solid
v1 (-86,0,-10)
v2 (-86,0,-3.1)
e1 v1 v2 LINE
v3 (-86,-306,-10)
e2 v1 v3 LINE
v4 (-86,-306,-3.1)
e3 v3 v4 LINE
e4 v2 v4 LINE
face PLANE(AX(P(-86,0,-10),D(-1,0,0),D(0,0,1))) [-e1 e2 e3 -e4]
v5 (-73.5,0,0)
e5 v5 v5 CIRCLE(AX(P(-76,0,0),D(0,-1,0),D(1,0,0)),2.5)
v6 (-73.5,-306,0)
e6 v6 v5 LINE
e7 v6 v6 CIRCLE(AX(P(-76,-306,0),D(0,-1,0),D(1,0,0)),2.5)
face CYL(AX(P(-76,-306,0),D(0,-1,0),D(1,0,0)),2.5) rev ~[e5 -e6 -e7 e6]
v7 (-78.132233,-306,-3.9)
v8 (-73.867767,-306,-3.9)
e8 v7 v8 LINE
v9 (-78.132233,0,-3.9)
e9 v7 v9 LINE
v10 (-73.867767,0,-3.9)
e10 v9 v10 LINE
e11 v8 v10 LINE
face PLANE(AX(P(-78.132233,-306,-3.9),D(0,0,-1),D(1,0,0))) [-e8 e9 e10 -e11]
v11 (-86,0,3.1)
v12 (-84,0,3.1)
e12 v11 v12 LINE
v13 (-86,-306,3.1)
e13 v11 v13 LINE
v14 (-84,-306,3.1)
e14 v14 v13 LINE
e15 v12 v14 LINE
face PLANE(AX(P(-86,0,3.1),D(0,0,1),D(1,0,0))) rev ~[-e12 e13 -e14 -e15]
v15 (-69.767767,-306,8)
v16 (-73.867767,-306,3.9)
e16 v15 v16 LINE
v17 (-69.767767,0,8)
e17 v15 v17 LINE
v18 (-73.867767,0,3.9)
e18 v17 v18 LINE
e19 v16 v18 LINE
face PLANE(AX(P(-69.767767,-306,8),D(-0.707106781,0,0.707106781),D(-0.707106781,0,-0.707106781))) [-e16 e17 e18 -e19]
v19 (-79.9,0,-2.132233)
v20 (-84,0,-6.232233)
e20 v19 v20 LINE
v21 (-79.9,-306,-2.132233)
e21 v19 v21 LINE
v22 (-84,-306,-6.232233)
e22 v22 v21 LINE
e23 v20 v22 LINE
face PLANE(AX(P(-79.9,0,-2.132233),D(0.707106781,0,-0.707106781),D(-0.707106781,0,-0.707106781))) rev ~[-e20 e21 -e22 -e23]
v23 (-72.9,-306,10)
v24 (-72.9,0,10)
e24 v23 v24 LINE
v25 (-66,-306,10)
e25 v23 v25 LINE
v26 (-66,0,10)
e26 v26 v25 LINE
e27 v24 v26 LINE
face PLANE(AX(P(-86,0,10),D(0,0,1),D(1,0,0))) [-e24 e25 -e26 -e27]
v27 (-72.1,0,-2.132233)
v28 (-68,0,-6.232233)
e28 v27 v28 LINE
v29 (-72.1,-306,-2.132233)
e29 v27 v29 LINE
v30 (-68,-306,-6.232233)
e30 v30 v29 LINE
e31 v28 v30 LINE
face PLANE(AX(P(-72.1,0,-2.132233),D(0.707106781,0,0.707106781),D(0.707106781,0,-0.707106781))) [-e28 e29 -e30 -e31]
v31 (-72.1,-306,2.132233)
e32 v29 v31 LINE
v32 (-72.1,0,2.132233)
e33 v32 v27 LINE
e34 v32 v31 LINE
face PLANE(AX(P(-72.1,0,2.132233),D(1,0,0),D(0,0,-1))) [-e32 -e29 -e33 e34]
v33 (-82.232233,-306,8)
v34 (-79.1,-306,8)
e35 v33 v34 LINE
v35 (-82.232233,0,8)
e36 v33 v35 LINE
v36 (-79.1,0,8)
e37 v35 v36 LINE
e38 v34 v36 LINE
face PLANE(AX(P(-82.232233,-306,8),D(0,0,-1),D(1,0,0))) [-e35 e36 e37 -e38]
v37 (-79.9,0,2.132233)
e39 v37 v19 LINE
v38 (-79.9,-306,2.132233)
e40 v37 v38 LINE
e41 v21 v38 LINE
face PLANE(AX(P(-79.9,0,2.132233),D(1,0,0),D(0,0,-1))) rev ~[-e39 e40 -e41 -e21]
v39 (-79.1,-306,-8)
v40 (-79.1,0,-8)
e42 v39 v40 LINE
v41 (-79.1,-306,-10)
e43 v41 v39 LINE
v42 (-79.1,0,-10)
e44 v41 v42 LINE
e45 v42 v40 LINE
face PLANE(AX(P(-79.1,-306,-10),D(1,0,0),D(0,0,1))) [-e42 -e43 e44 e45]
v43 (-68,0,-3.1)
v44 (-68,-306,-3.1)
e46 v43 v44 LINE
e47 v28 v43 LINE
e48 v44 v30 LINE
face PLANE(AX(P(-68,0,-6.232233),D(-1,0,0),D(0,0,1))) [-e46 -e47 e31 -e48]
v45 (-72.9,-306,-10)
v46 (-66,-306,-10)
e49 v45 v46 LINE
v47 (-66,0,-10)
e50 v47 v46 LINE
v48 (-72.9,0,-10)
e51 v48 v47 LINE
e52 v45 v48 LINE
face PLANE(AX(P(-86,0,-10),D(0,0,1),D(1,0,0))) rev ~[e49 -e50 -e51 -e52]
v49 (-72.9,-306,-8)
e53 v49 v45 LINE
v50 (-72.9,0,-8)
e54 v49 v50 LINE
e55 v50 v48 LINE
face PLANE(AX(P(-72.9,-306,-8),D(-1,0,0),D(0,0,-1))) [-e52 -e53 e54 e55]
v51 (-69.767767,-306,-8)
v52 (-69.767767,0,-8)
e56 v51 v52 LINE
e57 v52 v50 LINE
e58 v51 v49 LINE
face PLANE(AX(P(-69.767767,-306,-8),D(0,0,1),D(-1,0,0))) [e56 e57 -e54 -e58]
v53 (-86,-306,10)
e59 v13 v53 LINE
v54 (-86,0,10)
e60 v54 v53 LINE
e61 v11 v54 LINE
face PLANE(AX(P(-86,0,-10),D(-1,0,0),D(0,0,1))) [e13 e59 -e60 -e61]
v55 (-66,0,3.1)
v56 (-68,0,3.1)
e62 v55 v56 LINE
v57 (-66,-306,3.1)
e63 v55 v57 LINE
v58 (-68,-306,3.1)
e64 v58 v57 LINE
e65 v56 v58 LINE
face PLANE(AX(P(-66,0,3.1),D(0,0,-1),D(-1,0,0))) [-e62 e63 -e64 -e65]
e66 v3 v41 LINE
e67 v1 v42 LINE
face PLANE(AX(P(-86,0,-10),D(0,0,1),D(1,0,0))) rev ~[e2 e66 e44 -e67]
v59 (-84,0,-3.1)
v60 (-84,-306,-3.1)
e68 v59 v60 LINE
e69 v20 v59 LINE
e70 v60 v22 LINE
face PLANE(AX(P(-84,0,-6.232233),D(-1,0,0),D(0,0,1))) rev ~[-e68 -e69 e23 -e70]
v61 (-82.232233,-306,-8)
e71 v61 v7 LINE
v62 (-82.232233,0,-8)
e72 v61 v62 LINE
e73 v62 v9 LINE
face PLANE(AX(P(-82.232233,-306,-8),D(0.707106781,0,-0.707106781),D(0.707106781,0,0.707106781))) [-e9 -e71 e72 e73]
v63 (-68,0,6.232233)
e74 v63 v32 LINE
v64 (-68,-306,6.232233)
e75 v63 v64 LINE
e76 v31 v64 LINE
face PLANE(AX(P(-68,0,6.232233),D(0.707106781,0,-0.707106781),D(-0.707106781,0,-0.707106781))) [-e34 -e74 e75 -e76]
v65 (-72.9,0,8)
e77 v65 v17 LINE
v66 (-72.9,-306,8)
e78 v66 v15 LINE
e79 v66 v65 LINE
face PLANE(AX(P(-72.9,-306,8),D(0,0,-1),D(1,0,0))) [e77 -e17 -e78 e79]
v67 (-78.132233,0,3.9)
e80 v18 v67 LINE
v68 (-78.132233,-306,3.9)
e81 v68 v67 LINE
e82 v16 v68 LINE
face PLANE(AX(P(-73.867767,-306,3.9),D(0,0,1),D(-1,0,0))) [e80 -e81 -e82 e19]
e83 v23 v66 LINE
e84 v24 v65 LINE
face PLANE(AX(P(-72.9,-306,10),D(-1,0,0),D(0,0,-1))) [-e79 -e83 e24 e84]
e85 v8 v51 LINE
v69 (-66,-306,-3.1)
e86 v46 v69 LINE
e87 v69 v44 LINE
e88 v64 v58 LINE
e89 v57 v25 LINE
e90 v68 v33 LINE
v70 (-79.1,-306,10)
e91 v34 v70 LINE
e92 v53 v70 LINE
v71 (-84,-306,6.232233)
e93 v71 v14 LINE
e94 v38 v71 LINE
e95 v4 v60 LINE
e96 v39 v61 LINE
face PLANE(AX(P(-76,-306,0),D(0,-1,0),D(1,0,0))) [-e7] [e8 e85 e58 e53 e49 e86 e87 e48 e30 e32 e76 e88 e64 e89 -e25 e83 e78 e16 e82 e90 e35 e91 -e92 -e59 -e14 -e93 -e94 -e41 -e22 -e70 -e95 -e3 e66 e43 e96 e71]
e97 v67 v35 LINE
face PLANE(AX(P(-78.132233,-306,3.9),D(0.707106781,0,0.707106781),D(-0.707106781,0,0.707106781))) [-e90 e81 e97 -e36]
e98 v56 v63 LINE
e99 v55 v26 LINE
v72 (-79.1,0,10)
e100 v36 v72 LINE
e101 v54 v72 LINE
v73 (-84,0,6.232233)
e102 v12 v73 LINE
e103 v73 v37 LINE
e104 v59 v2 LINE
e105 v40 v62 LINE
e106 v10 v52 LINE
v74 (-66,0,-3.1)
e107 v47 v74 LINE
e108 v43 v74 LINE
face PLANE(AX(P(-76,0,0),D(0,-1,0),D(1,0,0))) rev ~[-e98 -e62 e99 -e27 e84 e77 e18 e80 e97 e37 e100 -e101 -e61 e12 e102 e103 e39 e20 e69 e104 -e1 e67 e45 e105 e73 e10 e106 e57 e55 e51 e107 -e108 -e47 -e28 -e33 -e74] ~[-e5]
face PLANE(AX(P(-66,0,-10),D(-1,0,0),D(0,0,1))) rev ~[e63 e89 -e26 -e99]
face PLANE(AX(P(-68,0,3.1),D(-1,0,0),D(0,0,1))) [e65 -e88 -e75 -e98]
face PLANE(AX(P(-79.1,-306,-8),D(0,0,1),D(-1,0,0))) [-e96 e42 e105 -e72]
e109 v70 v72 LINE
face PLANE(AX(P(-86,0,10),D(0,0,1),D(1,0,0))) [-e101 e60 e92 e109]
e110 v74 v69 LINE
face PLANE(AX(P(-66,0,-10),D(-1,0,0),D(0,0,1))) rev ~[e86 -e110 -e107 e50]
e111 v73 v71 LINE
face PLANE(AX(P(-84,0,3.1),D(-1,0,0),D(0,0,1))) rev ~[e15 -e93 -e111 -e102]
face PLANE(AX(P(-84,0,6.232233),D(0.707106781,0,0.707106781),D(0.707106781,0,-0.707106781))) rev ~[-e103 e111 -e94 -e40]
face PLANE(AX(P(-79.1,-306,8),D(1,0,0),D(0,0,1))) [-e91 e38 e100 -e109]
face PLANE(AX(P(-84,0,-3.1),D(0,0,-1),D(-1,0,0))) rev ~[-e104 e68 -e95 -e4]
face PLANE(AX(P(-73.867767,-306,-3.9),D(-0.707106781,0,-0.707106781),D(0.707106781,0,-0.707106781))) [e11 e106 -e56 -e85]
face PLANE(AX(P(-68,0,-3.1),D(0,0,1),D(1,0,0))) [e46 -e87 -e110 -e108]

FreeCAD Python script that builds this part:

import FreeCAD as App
import Part
import Sketcher


def add_polygon(sketch, points):
    """Adds a closed chain of lines whose ends are joined by coincident constraints."""
    first, n = sketch.GeometryCount, len(points)
    for a, b in zip(points, points[1:] + points[:1]):
        sketch.addGeometry(Part.LineSegment(App.Vector(*a, 0), App.Vector(*b, 0)), False)
    for i in range(n):
        sketch.addConstraint(Sketcher.Constraint("Coincident", first + i, 2, first + (i + 1) % n, 1))

doc = App.newDocument("Part")
body = doc.addObject("PartDesign::Body", "Body")

# Sketch on XY plane
sketch1 = doc.addObject("Sketcher::SketchObject", "Sketch")
body.addObject(sketch1)
sketch1.AttachmentSupport = (doc.XY_Plane, [""])
sketch1.MapMode = "FlatFace"
add_polygon(sketch1, [(-10, 10), (-10, -10), (10, -10), (10, 10)])  # lines 0-3
sketch1.addConstraint([
    Sketcher.Constraint("Vertical", 0),
    Sketcher.Constraint("Horizontal", 1),
    Sketcher.Constraint("Vertical", 2),
    Sketcher.Constraint("Horizontal", 3),
    Sketcher.Constraint("Symmetric", 0, 2, 2, 2, -1, 1),
    Sketcher.Constraint("Equal", 3, 0),
    Sketcher.Constraint("DistanceX", 1, 1, 1, 2, 20.0),
])
pad1 = doc.addObject("PartDesign::Pad", "Pad")
body.addObject(pad1)
pad1.Profile = sketch1
pad1.Length = 306

# Sketch on XY plane
sketch2 = doc.addObject("Sketcher::SketchObject", "Sketch001")
body.addObject(sketch2)
sketch2.AttachmentSupport = (doc.XY_Plane, [""])
sketch2.MapMode = "FlatFace"
sketch2.AttachmentOffset = App.Placement(App.Vector(0, 0, 306), App.Rotation())
sketch2.addGeometry(Part.Circle(App.Vector(0, 0, 0), App.Vector(0, 0, 1), 2.5), False)  # 0
add_polygon(sketch2, [(3.1, 10), (-3.1, 10), (-3.1, 8), (-6.2, 8), (-2.1, 3.9), (2.1, 3.9), (6.2, 8), (3.1, 8)])  # lines 1-8
add_polygon(sketch2, [(-6.2, -8), (-3.1, -8), (-3.1, -10), (3.1, -10), (3.1, -8), (6.2, -8), (2.1, -3.9), (-2.1, -3.9)])  # lines 9-16
sketch2.addConstraint([
    Sketcher.Constraint("Horizontal", 1),
    Sketcher.Constraint("Vertical", 2),
    Sketcher.Constraint("Horizontal", 3),
    Sketcher.Constraint("Horizontal", 5),
    Sketcher.Constraint("Horizontal", 7),
    Sketcher.Constraint("Vertical", 8),
    Sketcher.Constraint("Horizontal", 9),
    Sketcher.Constraint("Vertical", 10),
    Sketcher.Constraint("Horizontal", 11),
    Sketcher.Constraint("Vertical", 12),
    Sketcher.Constraint("Horizontal", 13),
    Sketcher.Constraint("Horizontal", 15),
    Sketcher.Constraint("Coincident", 0, 3, -1, 1),
    Sketcher.Constraint("Symmetric", 7, 2, 9, 2, -1, 1),
    Sketcher.Constraint("Symmetric", 1, 2, 11, 2, -1, 1),
    Sketcher.Constraint("Symmetric", 3, 2, 13, 2, -1, 1),
    Sketcher.Constraint("Symmetric", 4, 2, 14, 2, -1, 1),
    Sketcher.Constraint("Symmetric", 3, 2, 6, 2, -2),
    Sketcher.Constraint("Perpendicular", 4, 6),
    Sketcher.Constraint("Perpendicular", 14, 16),
    Sketcher.Constraint("Vertical", 2, 2, 9, 2),
    Sketcher.Constraint("Vertical", 5, 2, 14, 2),
    Sketcher.Constraint("Vertical", 4, 2, 15, 2),
    Sketcher.Constraint("Diameter", 0, 5.0),
    Sketcher.Constraint("DistanceY", 2, 2, 2, 1, 2.0),
    Sketcher.Constraint("DistanceX", 1, 2, 1, 1, 6.2),
    Sketcher.Constraint("DistanceY", -1, 1, 1, 2, 10.0),
    Sketcher.Constraint("DistanceY", -1, 1, 4, 2, 3.9),
    Sketcher.Constraint("DistanceX", 3, 2, 3, 1, 3.132233),
])
pocket1 = doc.addObject("PartDesign::Pocket", "Pocket")
body.addObject(pocket1)
pocket1.Profile = sketch2
pocket1.Type = "ThroughAll"

# Sketch on XY plane
sketch3 = doc.addObject("Sketcher::SketchObject", "Sketch002")
body.addObject(sketch3)
sketch3.AttachmentSupport = (doc.XY_Plane, [""])
sketch3.MapMode = "FlatFace"
add_polygon(sketch3, [(-10, 3.1), (-8, 3.1), (-8, 6.2), (-3.9, 2.1), (-3.9, -2.1), (-8, -6.2), (-8, -3.1), (-10, -3.1)])  # lines 0-7
add_polygon(sketch3, [(3.9, -2.1), (3.9, 2.1), (8, 6.2), (8, 3.1), (10, 3.1), (10, -3.1), (8, -3.1), (8, -6.2)])  # lines 8-15
sketch3.addConstraint([
    Sketcher.Constraint("Horizontal", 0),
    Sketcher.Constraint("Vertical", 1),
    Sketcher.Constraint("Vertical", 3),
    Sketcher.Constraint("Vertical", 5),
    Sketcher.Constraint("Horizontal", 6),
    Sketcher.Constraint("Vertical", 7),
    Sketcher.Constraint("Vertical", 8),
    Sketcher.Constraint("Vertical", 10),
    Sketcher.Constraint("Horizontal", 11),
    Sketcher.Constraint("Vertical", 12),
    Sketcher.Constraint("Horizontal", 13),
    Sketcher.Constraint("Vertical", 14),
    Sketcher.Constraint("Symmetric", 3, 2, 8, 2, -1, 1),
    Sketcher.Constraint("Symmetric", 4, 2, 9, 2, -1, 1),
    Sketcher.Constraint("Symmetric", 6, 2, 11, 2, -1, 1),
    Sketcher.Constraint("Symmetric", 0, 2, 13, 2, -1, 1),
    Sketcher.Constraint("Symmetric", 1, 2, 9, 2, -2),
    Sketcher.Constraint("Perpendicular", 2, 4),
    Sketcher.Constraint("Perpendicular", 9, 15),
    Sketcher.Constraint("Horizontal", 2, 2, 8, 2),
    Sketcher.Constraint("Horizontal", 7, 2, 10, 2),
    Sketcher.Constraint("Horizontal", 4, 2, 14, 2),
    Sketcher.Constraint("DistanceX", 0, 1, 0, 2, 2.0),
    Sketcher.Constraint("DistanceY", 7, 1, 7, 2, 6.2),
    Sketcher.Constraint("DistanceX", 0, 2, -1, 1, 8.0),
    Sketcher.Constraint("DistanceX", 2, 2, -1, 1, 3.9),
    Sketcher.Constraint("DistanceY", 1, 1, 1, 2, 3.132233),
])
pocket2 = doc.addObject("PartDesign::Pocket", "Pocket001")
body.addObject(pocket2)
pocket2.Profile = sketch3
pocket2.Type = "ThroughAll"
pocket2.Reversed = True
body2 = doc.addObject("PartDesign::Body", "Body001")
doc.recompute()

body.Placement = App.Placement(App.Vector(-76, 0, 0), App.Rotation(App.Vector(1, 0, 0), 90))
boolean = doc.addObject("PartDesign::Boolean", "Boolean")
body2.addObject(boolean)
boolean.Type = "Fuse"
boolean.addObjects([body])

doc.recompute()
